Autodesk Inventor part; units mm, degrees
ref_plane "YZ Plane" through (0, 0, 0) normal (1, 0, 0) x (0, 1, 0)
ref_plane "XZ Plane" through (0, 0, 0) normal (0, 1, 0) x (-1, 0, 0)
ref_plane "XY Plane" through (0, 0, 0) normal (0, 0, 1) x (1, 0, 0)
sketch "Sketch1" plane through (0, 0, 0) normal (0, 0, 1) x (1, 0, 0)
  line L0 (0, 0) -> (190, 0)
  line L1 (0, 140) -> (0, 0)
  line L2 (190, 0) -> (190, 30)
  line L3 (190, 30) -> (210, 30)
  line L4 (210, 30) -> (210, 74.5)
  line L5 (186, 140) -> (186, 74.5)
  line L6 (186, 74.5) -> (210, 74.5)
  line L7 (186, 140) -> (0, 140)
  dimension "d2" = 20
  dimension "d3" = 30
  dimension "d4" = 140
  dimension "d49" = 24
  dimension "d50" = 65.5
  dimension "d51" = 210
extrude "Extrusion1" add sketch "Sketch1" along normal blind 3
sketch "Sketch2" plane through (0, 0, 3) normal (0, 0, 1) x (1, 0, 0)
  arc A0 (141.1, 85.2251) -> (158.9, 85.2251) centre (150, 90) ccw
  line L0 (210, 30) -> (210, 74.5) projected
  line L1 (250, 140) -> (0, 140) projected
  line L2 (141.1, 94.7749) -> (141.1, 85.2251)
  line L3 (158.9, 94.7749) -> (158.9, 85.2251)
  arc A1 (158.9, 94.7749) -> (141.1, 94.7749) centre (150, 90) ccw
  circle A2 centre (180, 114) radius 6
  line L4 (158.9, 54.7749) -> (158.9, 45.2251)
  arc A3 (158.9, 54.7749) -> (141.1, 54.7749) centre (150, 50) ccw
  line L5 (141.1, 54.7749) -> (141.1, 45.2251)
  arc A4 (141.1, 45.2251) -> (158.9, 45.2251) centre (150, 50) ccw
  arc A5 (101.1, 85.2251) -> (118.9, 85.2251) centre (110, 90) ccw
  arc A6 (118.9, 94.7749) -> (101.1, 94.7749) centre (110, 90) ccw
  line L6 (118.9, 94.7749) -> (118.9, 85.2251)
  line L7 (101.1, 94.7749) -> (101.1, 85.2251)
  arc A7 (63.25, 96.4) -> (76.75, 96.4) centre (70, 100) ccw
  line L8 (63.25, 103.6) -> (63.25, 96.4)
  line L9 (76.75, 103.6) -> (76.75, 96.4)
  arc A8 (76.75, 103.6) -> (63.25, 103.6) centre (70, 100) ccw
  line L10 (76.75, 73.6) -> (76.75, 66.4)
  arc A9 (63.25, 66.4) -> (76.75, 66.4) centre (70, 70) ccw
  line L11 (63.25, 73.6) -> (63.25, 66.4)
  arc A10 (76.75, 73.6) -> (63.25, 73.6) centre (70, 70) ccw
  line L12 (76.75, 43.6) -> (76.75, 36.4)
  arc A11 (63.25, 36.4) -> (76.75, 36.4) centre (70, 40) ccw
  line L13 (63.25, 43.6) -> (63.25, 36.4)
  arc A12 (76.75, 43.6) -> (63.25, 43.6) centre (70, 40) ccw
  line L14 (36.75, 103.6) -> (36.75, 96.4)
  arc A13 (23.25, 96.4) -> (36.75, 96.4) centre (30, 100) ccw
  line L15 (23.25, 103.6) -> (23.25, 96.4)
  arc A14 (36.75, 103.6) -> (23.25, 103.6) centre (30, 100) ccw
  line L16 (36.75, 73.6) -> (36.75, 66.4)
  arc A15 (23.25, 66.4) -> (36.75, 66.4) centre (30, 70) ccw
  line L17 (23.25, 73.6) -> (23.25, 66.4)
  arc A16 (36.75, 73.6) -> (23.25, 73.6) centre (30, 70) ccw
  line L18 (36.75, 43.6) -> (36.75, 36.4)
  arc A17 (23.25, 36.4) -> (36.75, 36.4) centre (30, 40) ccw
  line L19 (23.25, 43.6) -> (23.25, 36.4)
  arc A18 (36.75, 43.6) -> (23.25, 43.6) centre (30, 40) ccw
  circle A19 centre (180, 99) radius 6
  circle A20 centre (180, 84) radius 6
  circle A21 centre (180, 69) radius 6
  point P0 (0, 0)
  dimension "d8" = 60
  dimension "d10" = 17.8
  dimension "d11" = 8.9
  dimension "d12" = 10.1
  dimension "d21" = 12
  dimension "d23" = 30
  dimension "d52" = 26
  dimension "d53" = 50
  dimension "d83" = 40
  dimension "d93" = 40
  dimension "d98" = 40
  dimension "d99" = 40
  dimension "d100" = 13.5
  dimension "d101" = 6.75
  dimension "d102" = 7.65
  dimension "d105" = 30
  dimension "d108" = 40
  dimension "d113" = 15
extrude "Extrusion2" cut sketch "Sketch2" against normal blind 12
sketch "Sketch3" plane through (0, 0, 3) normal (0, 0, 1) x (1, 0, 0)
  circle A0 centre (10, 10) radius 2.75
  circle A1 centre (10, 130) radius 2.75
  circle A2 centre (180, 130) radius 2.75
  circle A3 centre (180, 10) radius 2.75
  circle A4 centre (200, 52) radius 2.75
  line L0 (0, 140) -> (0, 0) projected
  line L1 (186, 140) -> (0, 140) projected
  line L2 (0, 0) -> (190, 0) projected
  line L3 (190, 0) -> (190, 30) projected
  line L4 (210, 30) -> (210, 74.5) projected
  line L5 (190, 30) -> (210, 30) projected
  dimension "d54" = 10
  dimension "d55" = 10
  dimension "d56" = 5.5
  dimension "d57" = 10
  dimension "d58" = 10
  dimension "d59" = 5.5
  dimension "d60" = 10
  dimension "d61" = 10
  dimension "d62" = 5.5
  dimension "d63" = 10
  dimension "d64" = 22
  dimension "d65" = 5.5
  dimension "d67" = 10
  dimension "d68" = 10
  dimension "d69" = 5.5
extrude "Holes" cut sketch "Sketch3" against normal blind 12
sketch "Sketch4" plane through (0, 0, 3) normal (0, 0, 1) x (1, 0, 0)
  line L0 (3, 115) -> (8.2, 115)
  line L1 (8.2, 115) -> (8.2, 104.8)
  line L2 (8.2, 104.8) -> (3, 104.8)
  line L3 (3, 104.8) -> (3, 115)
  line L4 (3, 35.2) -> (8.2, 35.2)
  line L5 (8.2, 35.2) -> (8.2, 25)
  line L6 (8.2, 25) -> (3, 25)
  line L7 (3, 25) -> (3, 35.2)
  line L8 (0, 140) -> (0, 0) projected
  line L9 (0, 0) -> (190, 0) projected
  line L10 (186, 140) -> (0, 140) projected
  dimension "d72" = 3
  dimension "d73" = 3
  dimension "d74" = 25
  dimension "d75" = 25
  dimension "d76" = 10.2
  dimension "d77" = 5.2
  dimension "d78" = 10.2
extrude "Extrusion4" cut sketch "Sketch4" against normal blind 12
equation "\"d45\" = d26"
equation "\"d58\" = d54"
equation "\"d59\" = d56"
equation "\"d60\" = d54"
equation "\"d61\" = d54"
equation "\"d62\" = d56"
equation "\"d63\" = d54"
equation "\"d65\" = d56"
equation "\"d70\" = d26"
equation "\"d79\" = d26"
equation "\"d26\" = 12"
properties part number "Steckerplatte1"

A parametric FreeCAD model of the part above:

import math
import FreeCAD as App
import Part
import Sketcher
from FreeCAD import Vector


def add_polygon(sketch, points):
    """Adds a closed chain of lines whose ends are joined by coincident constraints."""
    first, n = sketch.GeometryCount, len(points)
    for a, b in zip(points, points[1:] + points[:1]):
        sketch.addGeometry(Part.LineSegment(App.Vector(*a, 0), App.Vector(*b, 0)), False)
    for i in range(n):
        sketch.addConstraint(Sketcher.Constraint("Coincident", first + i, 2, first + (i + 1) % n, 1))

doc = App.newDocument("Part")
params = doc.addObject("Spreadsheet::Sheet", "Params")
for row, (alias, value) in enumerate([
    ("sketch1_width", "20 mm"),
    ("sketch1_width2", "24 mm"),
    ("sketch1_height", "140 mm"),
    ("sketch1_height2", "30 mm"),
    ("sketch1_height3", "65.5 mm"),
    ("pad1_length", "3 mm"),
    ("sketch2_diameter", "12 mm"),
    ("sketch2_radius", "10.1 mm"),
    ("sketch2_radius2", "7.65 mm"),
    ("pocket1_length", "12 mm"),
    ("sketch3_diameter", "5.5 mm"),
    ("pocket2_length", "12 mm"),
    ("sketch4_width", "5.2 mm"),
    ("sketch4_height", "10.2 mm"),
    ("pocket3_length", "12 mm"),
], start=1):
    params.set(f"A{row}", alias)
    params.set(f"B{row}", "=" + value)
    params.setAlias(f"B{row}", alias)

body = doc.addObject("PartDesign::Body", "Body")

sketch1 = doc.addObject("Sketcher::SketchObject", "Sketch")
body.addObject(sketch1)
sketch1.AttachmentSupport = (doc.XY_Plane, [""])
sketch1.MapMode = "FlatFace"
add_polygon(sketch1, [(0, 140), (0, 0), (190, 0), (190, 30), (210, 30), (210, 74.5), (186, 74.5), (186, 140)])
sketch1.addConstraint([
    Sketcher.Constraint("Vertical", 0),
    Sketcher.Constraint("Horizontal", 1),
    Sketcher.Constraint("Vertical", 2),
    Sketcher.Constraint("Horizontal", 3),
    Sketcher.Constraint("Vertical", 4),
    Sketcher.Constraint("Horizontal", 5),
    Sketcher.Constraint("Vertical", 6),
    Sketcher.Constraint("Horizontal", 7),
    Sketcher.Constraint("Coincident", 0, 2, -1, 1),
    Sketcher.Constraint("DistanceX", 3, 1, 3, 2, 20.0),
    Sketcher.Constraint("DistanceX", 5, 2, 5, 1, 24.0),
    Sketcher.Constraint("DistanceY", 0, 2, 0, 1, 140.0),
    Sketcher.Constraint("DistanceY", 2, 1, 2, 2, 30.0),
    Sketcher.Constraint("DistanceY", 6, 1, 6, 2, 65.5),
    Sketcher.Constraint("DistanceX", -1, 1, 3, 2, 210.0),
])
sketch1.setExpression("Constraints[17]", "Params.sketch1_width")
sketch1.setExpression("Constraints[18]", "Params.sketch1_width2")
sketch1.setExpression("Constraints[19]", "Params.sketch1_height")
sketch1.setExpression("Constraints[20]", "Params.sketch1_height2")
sketch1.setExpression("Constraints[21]", "Params.sketch1_height3")
pad1 = doc.addObject("PartDesign::Pad", "Pad")
body.addObject(pad1)
pad1.Profile = sketch1
pad1.setExpression("Length", "Params.pad1_length")

sketch2 = doc.addObject("Sketcher::SketchObject", "Sketch001")
body.addObject(sketch2)
sketch2.AttachmentSupport = (doc.XY_Plane, [""])
sketch2.MapMode = "FlatFace"
sketch2.AttachmentOffset = App.Placement(Vector(0, 0, 3), App.Rotation())
sketch2.addGeometry([
    Part.LineSegment(Vector(141.1, 94.7749, 0), Vector(141.1, 85.2251, 0)),
    Part.ArcOfCircle(Part.Circle(Vector(150, 90, 0), Vector(0, 0, 1), 10.099984), math.radians(-151.786192), math.radians(-28.213808)),
    Part.LineSegment(Vector(158.9, 85.2251, 0), Vector(158.9, 94.7749, 0)),
    Part.ArcOfCircle(Part.Circle(Vector(150, 90, 0), Vector(0, 0, 1), 10.099984), math.radians(28.213808), math.radians(151.786192)),
    Part.Circle(Vector(180, 114, 0), Vector(0, 0, 1), 6),
    Part.LineSegment(Vector(158.9, 45.2251, 0), Vector(158.9, 54.7749, 0)),
    Part.ArcOfCircle(Part.Circle(Vector(150, 50, 0), Vector(0, 0, 1), 10.099984), math.radians(28.213808), math.radians(151.786192)),
    Part.LineSegment(Vector(141.1, 54.7749, 0), Vector(141.1, 45.2251, 0)),
    Part.ArcOfCircle(Part.Circle(Vector(150, 50, 0), Vector(0, 0, 1), 10.099984), math.radians(-151.786192), math.radians(-28.213808)),
    Part.LineSegment(Vector(101.1, 94.7749, 0), Vector(101.1, 85.2251, 0)),
    Part.ArcOfCircle(Part.Circle(Vector(110, 90, 0), Vector(0, 0, 1), 10.099984), math.radians(-151.786192), math.radians(-28.213808)),
    Part.LineSegment(Vector(118.9, 85.2251, 0), Vector(118.9, 94.7749, 0)),
    Part.ArcOfCircle(Part.Circle(Vector(110, 90, 0), Vector(0, 0, 1), 10.099984), math.radians(28.213808), math.radians(151.786192)),
    Part.LineSegment(Vector(63.25, 103.6, 0), Vector(63.25, 96.4, 0)),
    Part.ArcOfCircle(Part.Circle(Vector(70, 100, 0), Vector(0, 0, 1), 7.65), math.radians(-151.927513), math.radians(-28.072487)),
    Part.LineSegment(Vector(76.75, 96.4, 0), Vector(76.75, 103.6, 0)),
    Part.ArcOfCircle(Part.Circle(Vector(70, 100, 0), Vector(0, 0, 1), 7.65), math.radians(28.072487), math.radians(151.927513)),
    Part.LineSegment(Vector(76.75, 66.4, 0), Vector(76.75, 73.6, 0)),
    Part.ArcOfCircle(Part.Circle(Vector(70, 70, 0), Vector(0, 0, 1), 7.65), math.radians(28.072487), math.radians(151.927513)),
    Part.LineSegment(Vector(63.25, 73.6, 0), Vector(63.25, 66.4, 0)),
    Part.ArcOfCircle(Part.Circle(Vector(70, 70, 0), Vector(0, 0, 1), 7.65), math.radians(-151.927513), math.radians(-28.072487)),
    Part.LineSegment(Vector(76.75, 36.4, 0), Vector(76.75, 43.6, 0)),
    Part.ArcOfCircle(Part.Circle(Vector(70, 40, 0), Vector(0, 0, 1), 7.65), math.radians(28.072487), math.radians(151.927513)),
    Part.LineSegment(Vector(63.25, 43.6, 0), Vector(63.25, 36.4, 0)),
    Part.ArcOfCircle(Part.Circle(Vector(70, 40, 0), Vector(0, 0, 1), 7.65), math.radians(-151.927513), math.radians(-28.072487)),
    Part.LineSegment(Vector(36.75, 96.4, 0), Vector(36.75, 103.6, 0)),
    Part.ArcOfCircle(Part.Circle(Vector(30, 100, 0), Vector(0, 0, 1), 7.65), math.radians(28.072487), math.radians(151.927513)),
    Part.LineSegment(Vector(23.25, 103.6, 0), Vector(23.25, 96.4, 0)),
    Part.ArcOfCircle(Part.Circle(Vector(30, 100, 0), Vector(0, 0, 1), 7.65), math.radians(-151.927513), math.radians(-28.072487)),
    Part.LineSegment(Vector(36.75, 66.4, 0), Vector(36.75, 73.6, 0)),
    Part.ArcOfCircle(Part.Circle(Vector(30, 70, 0), Vector(0, 0, 1), 7.65), math.radians(28.072487), math.radians(151.927513)),
    Part.LineSegment(Vector(23.25, 73.6, 0), Vector(23.25, 66.4, 0)),
    Part.ArcOfCircle(Part.Circle(Vector(30, 70, 0), Vector(0, 0, 1), 7.65), math.radians(-151.927513), math.radians(-28.072487)),
    Part.LineSegment(Vector(36.75, 36.4, 0), Vector(36.75, 43.6, 0)),
    Part.ArcOfCircle(Part.Circle(Vector(30, 40, 0), Vector(0, 0, 1), 7.65), math.radians(28.072487), math.radians(151.927513)),
    Part.LineSegment(Vector(23.25, 43.6, 0), Vector(23.25, 36.4, 0)),
    Part.ArcOfCircle(Part.Circle(Vector(30, 40, 0), Vector(0, 0, 1), 7.65), math.radians(-151.927513), math.radians(-28.072487)),
    Part.Circle(Vector(180, 99, 0), Vector(0, 0, 1), 6),
    Part.Circle(Vector(180, 84, 0), Vector(0, 0, 1), 6),
    Part.Circle(Vector(180, 69, 0), Vector(0, 0, 1), 6),
], False)
sketch2.addConstraint([
    Sketcher.Constraint("Coincident", 0, 2, 1, 1),
    Sketcher.Constraint("Coincident", 1, 2, 2, 1),
    Sketcher.Constraint("Coincident", 2, 2, 3, 1),
    Sketcher.Constraint("Coincident", 3, 2, 0, 1),
    Sketcher.Constraint("Coincident", 5, 2, 6, 1),
    Sketcher.Constraint("Coincident", 6, 2, 7, 1),
    Sketcher.Constraint("Coincident", 7, 2, 8, 1),
    Sketcher.Constraint("Coincident", 8, 2, 5, 1),
    Sketcher.Constraint("Coincident", 9, 2, 10, 1),
    Sketcher.Constraint("Coincident", 10, 2, 11, 1),
    Sketcher.Constraint("Coincident", 11, 2, 12, 1),
    Sketcher.Constraint("Coincident", 12, 2, 9, 1),
    Sketcher.Constraint("Coincident", 13, 2, 14, 1),
    Sketcher.Constraint("Coincident", 14, 2, 15, 1),
    Sketcher.Constraint("Coincident", 15, 2, 16, 1),
    Sketcher.Constraint("Coincident", 16, 2, 13, 1),
    Sketcher.Constraint("Coincident", 17, 2, 18, 1),
    Sketcher.Constraint("Coincident", 18, 2, 19, 1),
    Sketcher.Constraint("Coincident", 19, 2, 20, 1),
    Sketcher.Constraint("Coincident", 20, 2, 17, 1),
    Sketcher.Constraint("Coincident", 21, 2, 22, 1),
    Sketcher.Constraint("Coincident", 22, 2, 23, 1),
    Sketcher.Constraint("Coincident", 23, 2, 24, 1),
    Sketcher.Constraint("Coincident", 24, 2, 21, 1),
    Sketcher.Constraint("Coincident", 25, 2, 26, 1),
    Sketcher.Constraint("Coincident", 26, 2, 27, 1),
    Sketcher.Constraint("Coincident", 27, 2, 28, 1),
    Sketcher.Constraint("Coincident", 28, 2, 25, 1),
    Sketcher.Constraint("Coincident", 29, 2, 30, 1),
    Sketcher.Constraint("Coincident", 30, 2, 31, 1),
    Sketcher.Constraint("Coincident", 31, 2, 32, 1),
    Sketcher.Constraint("Coincident", 32, 2, 29, 1),
    Sketcher.Constraint("Coincident", 33, 2, 34, 1),
    Sketcher.Constraint("Coincident", 34, 2, 35, 1),
    Sketcher.Constraint("Coincident", 35, 2, 36, 1),
    Sketcher.Constraint("Coincident", 36, 2, 33, 1),
    Sketcher.Constraint("Vertical", 0),
    Sketcher.Constraint("Vertical", 2),
    Sketcher.Constraint("Vertical", 5),
    Sketcher.Constraint("Vertical", 7),
    Sketcher.Constraint("Vertical", 9),
    Sketcher.Constraint("Vertical", 11),
    Sketcher.Constraint("Vertical", 13),
    Sketcher.Constraint("Vertical", 15),
    Sketcher.Constraint("Vertical", 17),
    Sketcher.Constraint("Vertical", 19),
    Sketcher.Constraint("Vertical", 21),
    Sketcher.Constraint("Vertical", 23),
    Sketcher.Constraint("Vertical", 25),
    Sketcher.Constraint("Vertical", 27),
    Sketcher.Constraint("Vertical", 29),
    Sketcher.Constraint("Vertical", 31),
    Sketcher.Constraint("Vertical", 33),
    Sketcher.Constraint("Vertical", 35),
    Sketcher.Constraint("Coincident", 3, 3, 1, 3),
    Sketcher.Constraint("Coincident", 8, 3, 6, 3),
    Sketcher.Constraint("Coincident", 12, 3, 10, 3),
    Sketcher.Constraint("Coincident", 16, 3, 14, 3),
    Sketcher.Constraint("Coincident", 20, 3, 18, 3),
    Sketcher.Constraint("Coincident", 24, 3, 22, 3),
    Sketcher.Constraint("Coincident", 28, 3, 26, 3),
    Sketcher.Constraint("Coincident", 32, 3, 30, 3),
    Sketcher.Constraint("Coincident", 36, 3, 34, 3),
    Sketcher.Constraint("Equal", 1, 3),
    Sketcher.Constraint("Equal", 3, 6),
    Sketcher.Constraint("Equal", 6, 8),
    Sketcher.Constraint("Equal", 8, 10),
    Sketcher.Constraint("Equal", 10, 12),
    Sketcher.Constraint("Equal", 14, 16),
    Sketcher.Constraint("Equal", 16, 18),
    Sketcher.Constraint("Equal", 18, 20),
    Sketcher.Constraint("Equal", 20, 22),
    Sketcher.Constraint("Equal", 22, 24),
    Sketcher.Constraint("Equal", 24, 26),
    Sketcher.Constraint("Equal", 26, 28),
    Sketcher.Constraint("Equal", 28, 30),
    Sketcher.Constraint("Equal", 30, 32),
    Sketcher.Constraint("Equal", 32, 34),
    Sketcher.Constraint("Equal", 34, 36),
    Sketcher.Constraint("Equal", 4, 37),
    Sketcher.Constraint("Equal", 37, 38),
    Sketcher.Constraint("Equal", 38, 39),
    Sketcher.Constraint("Horizontal", 3, 3, 10, 3),
    Sketcher.Constraint("Horizontal", 16, 3, 26, 3),
    Sketcher.Constraint("Horizontal", 20, 3, 30, 3),
    Sketcher.Constraint("Horizontal", 24, 3, 34, 3),
    Sketcher.Constraint("Horizontal", 0, 2, 1, 2),
    Sketcher.Constraint("Horizontal", 5, 2, 6, 2),
    Sketcher.Constraint("Horizontal", 1, 2, 9, 2),
    Sketcher.Constraint("Horizontal", 9, 2, 10, 2),
    Sketcher.Constraint("Horizontal", 13, 2, 14, 2),
    Sketcher.Constraint("Horizontal", 17, 2, 18, 2),
    Sketcher.Constraint("Horizontal", 21, 2, 22, 2),
    Sketcher.Constraint("Horizontal", 16, 2, 25, 2),
    Sketcher.Constraint("Horizontal", 25, 2, 26, 2),
    Sketcher.Constraint("Horizontal", 18, 2, 29, 2),
    Sketcher.Constraint("Horizontal", 29, 2, 30, 2),
    Sketcher.Constraint("Horizontal", 22, 2, 33, 2),
    Sketcher.Constraint("Horizontal", 33, 2, 34, 2),
    Sketcher.Constraint("Vertical", 3, 3, 6, 3),
    Sketcher.Constraint("Vertical", 16, 3, 18, 3),
    Sketcher.Constraint("Vertical", 20, 3, 22, 3),
    Sketcher.Constraint("Vertical", 28, 3, 30, 3),
    Sketcher.Constraint("Vertical", 32, 3, 34, 3),
    Sketcher.Constraint("Vertical", 4, 3, 37, 3),
    Sketcher.Constraint("Vertical", 37, 3, 38, 3),
    Sketcher.Constraint("Vertical", 38, 3, 39, 3),
    Sketcher.Constraint("Vertical", 2, 2, 5, 2),
    Sketcher.Constraint("Vertical", 15, 2, 17, 2),
    Sketcher.Constraint("Vertical", 20, 2, 21, 2),
    Sketcher.Constraint("Diameter", 4, 12.0),
    Sketcher.Constraint("Radius", 1, 10.1),
    Sketcher.Constraint("Radius", 14, 7.65),
    Sketcher.Constraint("DistanceY", -1, 1, 6, 3, 50.0),
    Sketcher.Constraint("DistanceY", -1, 1, 22, 3, 40.0),
    Sketcher.Constraint("DistanceX", -1, 1, 26, 3, 30.0),
    Sketcher.Constraint("DistanceX", 1, 3, 4, 3, 30.0),
    Sketcher.Constraint("DistanceY", 6, 3, 1, 3, 40.0),
    Sketcher.Constraint("DistanceX", 10, 3, 1, 3, 40.0),
    Sketcher.Constraint("DistanceX", 14, 3, 10, 3, 40.0),
    Sketcher.Constraint("DistanceY", 10, 3, 14, 3, 10.0),
    Sketcher.Constraint("DistanceY", 18, 3, 14, 3, 30.0),
    Sketcher.Constraint("DistanceX", 26, 3, 14, 3, 40.0),
    Sketcher.Constraint("DistanceY", 37, 3, 4, 3, 15.0),
    Sketcher.Constraint("DistanceY", 38, 3, 37, 3, 15.0),
    Sketcher.Constraint("DistanceY", 39, 3, 38, 3, 15.0),
    Sketcher.Constraint("DistanceX", 0, 2, 1, 3, 8.9),
    Sketcher.Constraint("DistanceX", 13, 2, 14, 2, 13.5),
    Sketcher.Constraint("DistanceY", -1, 1, 4, 3, 114.0),
])
sketch2.setExpression("Constraints[110]", "Params.sketch2_diameter")
sketch2.setExpression("Constraints[111]", "Params.sketch2_radius")
sketch2.setExpression("Constraints[112]", "Params.sketch2_radius2")
pocket1 = doc.addObject("PartDesign::Pocket", "Pocket")
body.addObject(pocket1)
pocket1.Profile = sketch2
pocket1.setExpression("Length", "Params.pocket1_length")

sketch3 = doc.addObject("Sketcher::SketchObject", "Sketch002")
body.addObject(sketch3)
sketch3.AttachmentSupport = (doc.XY_Plane, [""])
sketch3.MapMode = "FlatFace"
sketch3.AttachmentOffset = App.Placement(Vector(0, 0, 3), App.Rotation())
sketch3.addGeometry([
    Part.Circle(Vector(10, 10, 0), Vector(0, 0, 1), 2.75),
    Part.Circle(Vector(10, 130, 0), Vector(0, 0, 1), 2.75),
    Part.Circle(Vector(180, 130, 0), Vector(0, 0, 1), 2.75),
    Part.Circle(Vector(180, 10, 0), Vector(0, 0, 1), 2.75),
    Part.Circle(Vector(200, 52, 0), Vector(0, 0, 1), 2.75),
], False)
sketch3.addConstraint([
    Sketcher.Constraint("Equal", 0, 1),
    Sketcher.Constraint("Equal", 1, 2),
    Sketcher.Constraint("Equal", 2, 3),
    Sketcher.Constraint("Equal", 3, 4),
    Sketcher.Constraint("Horizontal", 1, 3, 2, 3),
    Sketcher.Constraint("Horizontal", 0, 3, 3, 3),
    Sketcher.Constraint("Vertical", 0, 3, 1, 3),
    Sketcher.Constraint("Vertical", 2, 3, 3, 3),
    Sketcher.Constraint("Diameter", 0, 5.5),
    Sketcher.Constraint("DistanceX", -1, 1, 0, 3, 10.0),
    Sketcher.Constraint("DistanceY", -1, 1, 0, 3, 10.0),
    Sketcher.Constraint("DistanceY", -1, 1, 1, 3, 130.0),
    Sketcher.Constraint("DistanceX", -1, 1, 2, 3, 180.0),
    Sketcher.Constraint("DistanceX", -1, 1, 4, 3, 200.0),
    Sketcher.Constraint("DistanceY", -1, 1, 4, 3, 52.0),
])
sketch3.setExpression("Constraints[8]", "Params.sketch3_diameter")
pocket2 = doc.addObject("PartDesign::Pocket", "Pocket001")
body.addObject(pocket2)
pocket2.Profile = sketch3
pocket2.setExpression("Length", "Params.pocket2_length")

sketch4 = doc.addObject("Sketcher::SketchObject", "Sketch003")
body.addObject(sketch4)
sketch4.AttachmentSupport = (doc.XY_Plane, [""])
sketch4.MapMode = "FlatFace"
sketch4.AttachmentOffset = App.Placement(Vector(0, 0, 3), App.Rotation())
add_polygon(sketch4, [(8.2, 115), (3, 115), (3, 104.8), (8.2, 104.8)])
add_polygon(sketch4, [(8.2, 35.2), (3, 35.2), (3, 25), (8.2, 25)])
sketch4.addConstraint([
    Sketcher.Constraint("Horizontal", 0),
    Sketcher.Constraint("Vertical", 1),
    Sketcher.Constraint("Horizontal", 2),
    Sketcher.Constraint("Vertical", 3),
    Sketcher.Constraint("Horizontal", 4),
    Sketcher.Constraint("Vertical", 5),
    Sketcher.Constraint("Horizontal", 6),
    Sketcher.Constraint("Vertical", 7),
    Sketcher.Constraint("Vertical", 1, 2, 4, 2),
    Sketcher.Constraint("Vertical", 3, 2, 6, 2),
    Sketcher.Constraint("Equal", 3, 5),
    Sketcher.Constraint("DistanceX", 0, 2, 0, 1, 5.2),
    Sketcher.Constraint("DistanceY", 1, 2, 1, 1, 10.2),
    Sketcher.Constraint("DistanceX", -1, 1, 0, 2, 3.0),
    Sketcher.Constraint("DistanceY", -1, 1, 5, 2, 25.0),
    Sketcher.Constraint("DistanceY", -1, 1, 0, 2, 115.0),
])
sketch4.setExpression("Constraints[19]", "Params.sketch4_width")
sketch4.setExpression("Constraints[20]", "Params.sketch4_height")
pocket3 = doc.addObject("PartDesign::Pocket", "Pocket002")
body.addObject(pocket3)
pocket3.Profile = sketch4
pocket3.setExpression("Length", "Params.pocket3_length")

doc.recompute()
